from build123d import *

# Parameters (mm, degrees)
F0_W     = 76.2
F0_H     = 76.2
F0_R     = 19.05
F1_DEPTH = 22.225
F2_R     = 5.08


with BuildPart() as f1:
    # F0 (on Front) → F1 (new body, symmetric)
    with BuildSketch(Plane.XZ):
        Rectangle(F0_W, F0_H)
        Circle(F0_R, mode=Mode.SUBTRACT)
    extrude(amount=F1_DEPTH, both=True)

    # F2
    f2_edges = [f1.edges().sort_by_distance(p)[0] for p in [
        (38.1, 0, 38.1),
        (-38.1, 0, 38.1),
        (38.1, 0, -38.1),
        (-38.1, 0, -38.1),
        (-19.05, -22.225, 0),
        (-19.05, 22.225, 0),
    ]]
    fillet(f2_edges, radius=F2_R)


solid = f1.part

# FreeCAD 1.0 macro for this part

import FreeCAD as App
import Part
import Sketcher

V = App.Vector
Q = App.Units.Quantity


def edges_at(feature, points):
    """Names of the edges that pass closest to the given points."""
    edges = feature.Shape.Edges
    near = lambda p: min(range(len(edges)), key=lambda i: edges[i].distToShape(Part.Vertex(*p))[0])
    return sorted({f"Edge{near(p) + 1}" for p in points})

doc = App.newDocument("Part")
body = doc.addObject("PartDesign::Body", "Body")

# Sketch on XZ plane
sketch1 = body.newObject("Sketcher::SketchObject", "Sketch")
sketch1.AttachmentSupport = (doc.getObject("XZ_Plane"), [""])
sketch1.MapMode = "FlatFace"
sketch1.addGeometry(Part.LineSegment(V(-38, 38, 0), V(-38, -38, 0)), False)
sketch1.addGeometry(Part.LineSegment(V(-38, -38, 0), V(38, -38, 0)), False)
sketch1.addGeometry(Part.LineSegment(V(38, -38, 0), V(38, 38, 0)), False)
sketch1.addGeometry(Part.LineSegment(V(38, 38, 0), V(-38, 38, 0)), False)
sketch1.addGeometry(Part.Circle(V(0, 0, 0), V(0, 0, 1), 19), False)
sketch1.addConstraint(Sketcher.Constraint("Coincident", 0, 2, 1, 1))
sketch1.addConstraint(Sketcher.Constraint("Coincident", 1, 2, 2, 1))
sketch1.addConstraint(Sketcher.Constraint("Coincident", 2, 2, 3, 1))
sketch1.addConstraint(Sketcher.Constraint("Coincident", 3, 2, 0, 1))
sketch1.addConstraint(Sketcher.Constraint("Vertical", 0))
sketch1.addConstraint(Sketcher.Constraint("Horizontal", 1))
sketch1.addConstraint(Sketcher.Constraint("Vertical", 2))
sketch1.addConstraint(Sketcher.Constraint("Horizontal", 3))
sketch1.addConstraint(Sketcher.Constraint("Coincident", 4, 3, -1, 1))
sketch1.addConstraint(Sketcher.Constraint("Symmetric", 0, 2, 2, 2, -1, 1))
sketch1.addConstraint(Sketcher.Constraint("Equal", 3, 0))
sketch1.addConstraint(Sketcher.Constraint("Diameter", 4, Q("1.5 in")))
sketch1.addConstraint(Sketcher.Constraint("DistanceX", 1, 1, 1, 2, Q("3 in")))
pad1 = body.newObject("PartDesign::Pad", "Pad")
pad1.Profile = sketch1
pad1.Length = Q("1.75 in")
pad1.Midplane = True
doc.recompute()

fillet = body.newObject("PartDesign::Fillet", "Fillet")
fillet.Base = (pad1, edges_at(pad1, [
    (38.1, 0, 38.1),
    (-38.1, 0, 38.1),
    (38.1, 0, -38.1),
    (-38.1, 0, -38.1),
    (-19.05, -22.225, 0),
    (-19.05, 22.225, 0),
]))
fillet.Radius = Q("0.2 in")

doc.recompute()
